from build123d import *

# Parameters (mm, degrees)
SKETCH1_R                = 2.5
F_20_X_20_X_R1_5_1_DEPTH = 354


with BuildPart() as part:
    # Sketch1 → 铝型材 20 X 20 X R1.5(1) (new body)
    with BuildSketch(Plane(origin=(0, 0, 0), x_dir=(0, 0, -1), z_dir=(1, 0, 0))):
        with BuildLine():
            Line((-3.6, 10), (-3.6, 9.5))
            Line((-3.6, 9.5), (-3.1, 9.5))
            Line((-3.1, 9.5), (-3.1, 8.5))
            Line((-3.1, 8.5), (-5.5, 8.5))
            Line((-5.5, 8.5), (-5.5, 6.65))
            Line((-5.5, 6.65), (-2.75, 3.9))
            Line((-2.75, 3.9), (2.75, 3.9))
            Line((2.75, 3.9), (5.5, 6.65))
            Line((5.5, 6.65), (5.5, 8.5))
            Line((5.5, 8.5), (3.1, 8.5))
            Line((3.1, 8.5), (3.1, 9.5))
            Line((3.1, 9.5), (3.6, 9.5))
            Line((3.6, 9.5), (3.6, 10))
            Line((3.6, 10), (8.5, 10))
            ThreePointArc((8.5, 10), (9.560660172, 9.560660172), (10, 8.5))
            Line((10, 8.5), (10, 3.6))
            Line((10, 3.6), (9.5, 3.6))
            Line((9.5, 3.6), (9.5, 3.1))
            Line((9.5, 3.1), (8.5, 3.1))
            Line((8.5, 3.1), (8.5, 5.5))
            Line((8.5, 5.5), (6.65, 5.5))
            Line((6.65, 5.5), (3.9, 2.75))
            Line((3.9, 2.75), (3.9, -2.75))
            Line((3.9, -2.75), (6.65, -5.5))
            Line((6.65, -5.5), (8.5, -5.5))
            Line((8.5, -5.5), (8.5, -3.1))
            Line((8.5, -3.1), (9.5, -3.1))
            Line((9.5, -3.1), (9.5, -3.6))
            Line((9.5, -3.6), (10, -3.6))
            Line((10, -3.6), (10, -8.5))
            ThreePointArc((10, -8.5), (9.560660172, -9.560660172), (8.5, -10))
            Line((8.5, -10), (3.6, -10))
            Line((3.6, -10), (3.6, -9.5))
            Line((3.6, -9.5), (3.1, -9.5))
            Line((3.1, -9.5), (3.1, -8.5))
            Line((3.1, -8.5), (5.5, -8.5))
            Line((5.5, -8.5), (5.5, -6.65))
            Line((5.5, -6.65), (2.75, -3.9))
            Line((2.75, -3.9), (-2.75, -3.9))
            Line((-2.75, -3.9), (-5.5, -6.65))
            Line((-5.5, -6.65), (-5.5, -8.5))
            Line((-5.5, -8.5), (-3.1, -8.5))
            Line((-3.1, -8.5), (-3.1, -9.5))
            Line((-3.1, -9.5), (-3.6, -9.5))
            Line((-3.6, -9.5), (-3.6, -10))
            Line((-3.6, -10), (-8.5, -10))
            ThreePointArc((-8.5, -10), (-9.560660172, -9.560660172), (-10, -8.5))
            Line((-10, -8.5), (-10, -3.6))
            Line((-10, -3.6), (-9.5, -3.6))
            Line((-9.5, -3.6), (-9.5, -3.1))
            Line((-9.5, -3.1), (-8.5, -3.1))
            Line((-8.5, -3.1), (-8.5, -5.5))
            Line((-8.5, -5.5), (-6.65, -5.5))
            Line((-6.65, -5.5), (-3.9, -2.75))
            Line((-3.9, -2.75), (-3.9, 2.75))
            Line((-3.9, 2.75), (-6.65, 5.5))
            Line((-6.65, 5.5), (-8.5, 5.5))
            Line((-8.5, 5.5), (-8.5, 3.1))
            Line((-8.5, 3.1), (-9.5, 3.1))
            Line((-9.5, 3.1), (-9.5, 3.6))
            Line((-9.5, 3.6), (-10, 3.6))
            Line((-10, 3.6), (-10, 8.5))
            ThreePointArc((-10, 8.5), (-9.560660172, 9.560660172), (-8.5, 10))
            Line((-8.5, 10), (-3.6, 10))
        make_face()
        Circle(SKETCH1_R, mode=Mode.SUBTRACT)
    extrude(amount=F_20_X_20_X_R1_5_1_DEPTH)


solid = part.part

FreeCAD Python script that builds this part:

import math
import FreeCAD as App
import Part
import Sketcher
Q = App.Units.Quantity

doc = App.newDocument("Part")
params = doc.addObject("Spreadsheet::Sheet", "Params")
for row, (alias, value) in enumerate([
    ("sketch1_diameter", "5 mm"),
    ("sketch1_radius", "1.5 mm"),
    ("sketch1_width", "1 mm"),
    ("sketch1_width2", "4.9 mm"),
    ("sketch1_width3", "2.4 mm"),
    ("pad1_length", "354 mm"),
], start=1):
    params.set(f"A{row}", alias)
    params.set(f"B{row}", "=" + value)
    params.setAlias(f"B{row}", alias)

body = doc.addObject("PartDesign::Body", "Body")

# Sketch on YZ plane
sketch1 = body.newObject("Sketcher::SketchObject", "Sketch")
sketch1.AttachmentSupport = (doc.getObject("YZ_Plane"), [""])
sketch1.MapMode = "FlatFace"
sketch1.addGeometry(Part.LineSegment(App.Vector(9.5, 3.6, 0), App.Vector(10, 3.6, 0)), False)
sketch1.addGeometry(Part.LineSegment(App.Vector(10, 3.6, 0), App.Vector(10, 8.5, 0)), False)
sketch1.addGeometry(Part.ArcOfCircle(Part.Circle(App.Vector(8.5, 8.5, 0), App.Vector(0, 0, 1), 1.5), math.radians(0), math.radians(90)), False)
sketch1.addGeometry(Part.LineSegment(App.Vector(8.5, 10, 0), App.Vector(3.6, 10, 0)), False)
sketch1.addGeometry(Part.LineSegment(App.Vector(3.6, 10, 0), App.Vector(3.6, 9.5, 0)), False)
sketch1.addGeometry(Part.LineSegment(App.Vector(3.6, 9.5, 0), App.Vector(3.1, 9.5, 0)), False)
sketch1.addGeometry(Part.LineSegment(App.Vector(3.1, 9.5, 0), App.Vector(3.1, 8.5, 0)), False)
sketch1.addGeometry(Part.LineSegment(App.Vector(3.1, 8.5, 0), App.Vector(5.5, 8.5, 0)), False)
sketch1.addGeometry(Part.LineSegment(App.Vector(5.5, 8.5, 0), App.Vector(5.5, 6.7, 0)), False)
sketch1.addGeometry(Part.LineSegment(App.Vector(5.5, 6.7, 0), App.Vector(2.8, 3.9, 0)), False)
sketch1.addGeometry(Part.LineSegment(App.Vector(2.8, 3.9, 0), App.Vector(-2.8, 3.9, 0)), False)
sketch1.addGeometry(Part.LineSegment(App.Vector(-2.8, 3.9, 0), App.Vector(-5.5, 6.7, 0)), False)
sketch1.addGeometry(Part.LineSegment(App.Vector(-5.5, 6.7, 0), App.Vector(-5.5, 8.5, 0)), False)
sketch1.addGeometry(Part.LineSegment(App.Vector(-5.5, 8.5, 0), App.Vector(-3.1, 8.5, 0)), False)
sketch1.addGeometry(Part.LineSegment(App.Vector(-3.1, 8.5, 0), App.Vector(-3.1, 9.5, 0)), False)
sketch1.addGeometry(Part.LineSegment(App.Vector(-3.1, 9.5, 0), App.Vector(-3.6, 9.5, 0)), False)
sketch1.addGeometry(Part.LineSegment(App.Vector(-3.6, 9.5, 0), App.Vector(-3.6, 10, 0)), False)
sketch1.addGeometry(Part.LineSegment(App.Vector(-3.6, 10, 0), App.Vector(-8.5, 10, 0)), False)
sketch1.addGeometry(Part.ArcOfCircle(Part.Circle(App.Vector(-8.5, 8.5, 0), App.Vector(0, 0, 1), 1.5), math.radians(90), math.radians(180)), False)
sketch1.addGeometry(Part.LineSegment(App.Vector(-10, 8.5, 0), App.Vector(-10, 3.6, 0)), False)
sketch1.addGeometry(Part.LineSegment(App.Vector(-10, 3.6, 0), App.Vector(-9.5, 3.6, 0)), False)
sketch1.addGeometry(Part.LineSegment(App.Vector(-9.5, 3.6, 0), App.Vector(-9.5, 3.1, 0)), False)
sketch1.addGeometry(Part.LineSegment(App.Vector(-9.5, 3.1, 0), App.Vector(-8.5, 3.1, 0)), False)
sketch1.addGeometry(Part.LineSegment(App.Vector(-8.5, 3.1, 0), App.Vector(-8.5, 5.5, 0)), False)
sketch1.addGeometry(Part.LineSegment(App.Vector(-8.5, 5.5, 0), App.Vector(-6.7, 5.5, 0)), False)
sketch1.addGeometry(Part.LineSegment(App.Vector(-6.7, 5.5, 0), App.Vector(-3.9, 2.8, 0)), False)
sketch1.addGeometry(Part.LineSegment(App.Vector(-3.9, 2.8, 0), App.Vector(-3.9, -2.8, 0)), False)
sketch1.addGeometry(Part.LineSegment(App.Vector(-3.9, -2.8, 0), App.Vector(-6.7, -5.5, 0)), False)
sketch1.addGeometry(Part.LineSegment(App.Vector(-6.7, -5.5, 0), App.Vector(-8.5, -5.5, 0)), False)
sketch1.addGeometry(Part.LineSegment(App.Vector(-8.5, -5.5, 0), App.Vector(-8.5, -3.1, 0)), False)
sketch1.addGeometry(Part.LineSegment(App.Vector(-8.5, -3.1, 0), App.Vector(-9.5, -3.1, 0)), False)
sketch1.addGeometry(Part.LineSegment(App.Vector(-9.5, -3.1, 0), App.Vector(-9.5, -3.6, 0)), False)
sketch1.addGeometry(Part.LineSegment(App.Vector(-9.5, -3.6, 0), App.Vector(-10, -3.6, 0)), False)
sketch1.addGeometry(Part.LineSegment(App.Vector(-10, -3.6, 0), App.Vector(-10, -8.5, 0)), False)
sketch1.addGeometry(Part.ArcOfCircle(Part.Circle(App.Vector(-8.5, -8.5, 0), App.Vector(0, 0, 1), 1.5), math.radians(180), math.radians(270)), False)
sketch1.addGeometry(Part.LineSegment(App.Vector(-8.5, -10, 0), App.Vector(-3.6, -10, 0)), False)
sketch1.addGeometry(Part.LineSegment(App.Vector(-3.6, -10, 0), App.Vector(-3.6, -9.5, 0)), False)
sketch1.addGeometry(Part.LineSegment(App.Vector(-3.6, -9.5, 0), App.Vector(-3.1, -9.5, 0)), False)
sketch1.addGeometry(Part.LineSegment(App.Vector(-3.1, -9.5, 0), App.Vector(-3.1, -8.5, 0)), False)
sketch1.addGeometry(Part.LineSegment(App.Vector(-3.1, -8.5, 0), App.Vector(-5.5, -8.5, 0)), False)
sketch1.addGeometry(Part.LineSegment(App.Vector(-5.5, -8.5, 0), App.Vector(-5.5, -6.7, 0)), False)
sketch1.addGeometry(Part.LineSegment(App.Vector(-5.5, -6.7, 0), App.Vector(-2.8, -3.9, 0)), False)
sketch1.addGeometry(Part.LineSegment(App.Vector(-2.8, -3.9, 0), App.Vector(2.8, -3.9, 0)), False)
sketch1.addGeometry(Part.LineSegment(App.Vector(2.8, -3.9, 0), App.Vector(5.5, -6.7, 0)), False)
sketch1.addGeometry(Part.LineSegment(App.Vector(5.5, -6.7, 0), App.Vector(5.5, -8.5, 0)), False)
sketch1.addGeometry(Part.LineSegment(App.Vector(5.5, -8.5, 0), App.Vector(3.1, -8.5, 0)), False)
sketch1.addGeometry(Part.LineSegment(App.Vector(3.1, -8.5, 0), App.Vector(3.1, -9.5, 0)), False)
sketch1.addGeometry(Part.LineSegment(App.Vector(3.1, -9.5, 0), App.Vector(3.6, -9.5, 0)), False)
sketch1.addGeometry(Part.LineSegment(App.Vector(3.6, -9.5, 0), App.Vector(3.6, -10, 0)), False)
sketch1.addGeometry(Part.LineSegment(App.Vector(3.6, -10, 0), App.Vector(8.5, -10, 0)), False)
sketch1.addGeometry(Part.ArcOfCircle(Part.Circle(App.Vector(8.5, -8.5, 0), App.Vector(0, 0, 1), 1.5), math.radians(-90), math.radians(0)), False)
sketch1.addGeometry(Part.LineSegment(App.Vector(10, -8.5, 0), App.Vector(10, -3.6, 0)), False)
sketch1.addGeometry(Part.LineSegment(App.Vector(10, -3.6, 0), App.Vector(9.5, -3.6, 0)), False)
sketch1.addGeometry(Part.LineSegment(App.Vector(9.5, -3.6, 0), App.Vector(9.5, -3.1, 0)), False)
sketch1.addGeometry(Part.LineSegment(App.Vector(9.5, -3.1, 0), App.Vector(8.5, -3.1, 0)), False)
sketch1.addGeometry(Part.LineSegment(App.Vector(8.5, -3.1, 0), App.Vector(8.5, -5.5, 0)), False)
sketch1.addGeometry(Part.LineSegment(App.Vector(8.5, -5.5, 0), App.Vector(6.7, -5.5, 0)), False)
sketch1.addGeometry(Part.LineSegment(App.Vector(6.7, -5.5, 0), App.Vector(3.9, -2.8, 0)), False)
sketch1.addGeometry(Part.LineSegment(App.Vector(3.9, -2.8, 0), App.Vector(3.9, 2.8, 0)), False)
sketch1.addGeometry(Part.LineSegment(App.Vector(3.9, 2.8, 0), App.Vector(6.7, 5.5, 0)), False)
sketch1.addGeometry(Part.LineSegment(App.Vector(6.7, 5.5, 0), App.Vector(8.5, 5.5, 0)), False)
sketch1.addGeometry(Part.LineSegment(App.Vector(8.5, 5.5, 0), App.Vector(8.5, 3.1, 0)), False)
sketch1.addGeometry(Part.LineSegment(App.Vector(8.5, 3.1, 0), App.Vector(9.5, 3.1, 0)), False)
sketch1.addGeometry(Part.LineSegment(App.Vector(9.5, 3.1, 0), App.Vector(9.5, 3.6, 0)), False)
sketch1.addGeometry(Part.Circle(App.Vector(0, 0, 0), App.Vector(0, 0, 1), 2.5), False)
sketch1.addConstraint(Sketcher.Constraint("Coincident", 0, 2, 1, 1))
sketch1.addConstraint(Sketcher.Constraint("Tangent", 1, 2, 2, 1))
sketch1.addConstraint(Sketcher.Constraint("Tangent", 2, 2, 3, 1))
sketch1.addConstraint(Sketcher.Constraint("Coincident", 3, 2, 4, 1))
sketch1.addConstraint(Sketcher.Constraint("Coincident", 4, 2, 5, 1))
sketch1.addConstraint(Sketcher.Constraint("Coincident", 5, 2, 6, 1))
sketch1.addConstraint(Sketcher.Constraint("Coincident", 6, 2, 7, 1))
sketch1.addConstraint(Sketcher.Constraint("Coincident", 7, 2, 8, 1))
sketch1.addConstraint(Sketcher.Constraint("Coincident", 8, 2, 9, 1))
sketch1.addConstraint(Sketcher.Constraint("Coincident", 9, 2, 10, 1))
sketch1.addConstraint(Sketcher.Constraint("Coincident", 10, 2, 11, 1))
sketch1.addConstraint(Sketcher.Constraint("Coincident", 11, 2, 12, 1))
sketch1.addConstraint(Sketcher.Constraint("Coincident", 12, 2, 13, 1))
sketch1.addConstraint(Sketcher.Constraint("Coincident", 13, 2, 14, 1))
sketch1.addConstraint(Sketcher.Constraint("Coincident", 14, 2, 15, 1))
sketch1.addConstraint(Sketcher.Constraint("Coincident", 15, 2, 16, 1))
sketch1.addConstraint(Sketcher.Constraint("Coincident", 16, 2, 17, 1))
sketch1.addConstraint(Sketcher.Constraint("Tangent", 17, 2, 18, 1))
sketch1.addConstraint(Sketcher.Constraint("Tangent", 18, 2, 19, 1))
sketch1.addConstraint(Sketcher.Constraint("Coincident", 19, 2, 20, 1))
sketch1.addConstraint(Sketcher.Constraint("Coincident", 20, 2, 21, 1))
sketch1.addConstraint(Sketcher.Constraint("Coincident", 21, 2, 22, 1))
sketch1.addConstraint(Sketcher.Constraint("Coincident", 22, 2, 23, 1))
sketch1.addConstraint(Sketcher.Constraint("Coincident", 23, 2, 24, 1))
sketch1.addConstraint(Sketcher.Constraint("Coincident", 24, 2, 25, 1))
sketch1.addConstraint(Sketcher.Constraint("Coincident", 25, 2, 26, 1))
sketch1.addConstraint(Sketcher.Constraint("Coincident", 26, 2, 27, 1))
sketch1.addConstraint(Sketcher.Constraint("Coincident", 27, 2, 28, 1))
sketch1.addConstraint(Sketcher.Constraint("Coincident", 28, 2, 29, 1))
sketch1.addConstraint(Sketcher.Constraint("Coincident", 29, 2, 30, 1))
sketch1.addConstraint(Sketcher.Constraint("Coincident", 30, 2, 31, 1))
sketch1.addConstraint(Sketcher.Constraint("Coincident", 31, 2, 32, 1))
sketch1.addConstraint(Sketcher.Constraint("Coincident", 32, 2, 33, 1))
sketch1.addConstraint(Sketcher.Constraint("Tangent", 33, 2, 34, 1))
sketch1.addConstraint(Sketcher.Constraint("Tangent", 34, 2, 35, 1))
sketch1.addConstraint(Sketcher.Constraint("Coincident", 35, 2, 36, 1))
sketch1.addConstraint(Sketcher.Constraint("Coincident", 36, 2, 37, 1))
sketch1.addConstraint(Sketcher.Constraint("Coincident", 37, 2, 38, 1))
sketch1.addConstraint(Sketcher.Constraint("Coincident", 38, 2, 39, 1))
sketch1.addConstraint(Sketcher.Constraint("Coincident", 39, 2, 40, 1))
sketch1.addConstraint(Sketcher.Constraint("Coincident", 40, 2, 41, 1))
sketch1.addConstraint(Sketcher.Constraint("Coincident", 41, 2, 42, 1))
sketch1.addConstraint(Sketcher.Constraint("Coincident", 42, 2, 43, 1))
sketch1.addConstraint(Sketcher.Constraint("Coincident", 43, 2, 44, 1))
sketch1.addConstraint(Sketcher.Constraint("Coincident", 44, 2, 45, 1))
sketch1.addConstraint(Sketcher.Constraint("Coincident", 45, 2, 46, 1))
sketch1.addConstraint(Sketcher.Constraint("Coincident", 46, 2, 47, 1))
sketch1.addConstraint(Sketcher.Constraint("Coincident", 47, 2, 48, 1))
sketch1.addConstraint(Sketcher.Constraint("Coincident", 48, 2, 49, 1))
sketch1.addConstraint(Sketcher.Constraint("Tangent", 49, 2, 50, 1))
sketch1.addConstraint(Sketcher.Constraint("Tangent", 50, 2, 51, 1))
sketch1.addConstraint(Sketcher.Constraint("Coincident", 51, 2, 52, 1))
sketch1.addConstraint(Sketcher.Constraint("Coincident", 52, 2, 53, 1))
sketch1.addConstraint(Sketcher.Constraint("Coincident", 53, 2, 54, 1))
sketch1.addConstraint(Sketcher.Constraint("Coincident", 54, 2, 55, 1))
sketch1.addConstraint(Sketcher.Constraint("Coincident", 55, 2, 56, 1))
sketch1.addConstraint(Sketcher.Constraint("Coincident", 56, 2, 57, 1))
sketch1.addConstraint(Sketcher.Constraint("Coincident", 57, 2, 58, 1))
sketch1.addConstraint(Sketcher.Constraint("Coincident", 58, 2, 59, 1))
sketch1.addConstraint(Sketcher.Constraint("Coincident", 59, 2, 60, 1))
sketch1.addConstraint(Sketcher.Constraint("Coincident", 60, 2, 61, 1))
sketch1.addConstraint(Sketcher.Constraint("Coincident", 61, 2, 62, 1))
sketch1.addConstraint(Sketcher.Constraint("Coincident", 62, 2, 63, 1))
sketch1.addConstraint(Sketcher.Constraint("Coincident", 63, 2, 0, 1))
sketch1.addConstraint(Sketcher.Constraint("Horizontal", 0))
sketch1.addConstraint(Sketcher.Constraint("Vertical", 1))
sketch1.addConstraint(Sketcher.Constraint("Horizontal", 3))
sketch1.addConstraint(Sketcher.Constraint("Vertical", 4))
sketch1.addConstraint(Sketcher.Constraint("Horizontal", 5))
sketch1.addConstraint(Sketcher.Constraint("Vertical", 6))
sketch1.addConstraint(Sketcher.Constraint("Horizontal", 7))
sketch1.addConstraint(Sketcher.Constraint("Vertical", 8))
sketch1.addConstraint(Sketcher.Constraint("Horizontal", 10))
sketch1.addConstraint(Sketcher.Constraint("Vertical", 12))
sketch1.addConstraint(Sketcher.Constraint("Horizontal", 13))
sketch1.addConstraint(Sketcher.Constraint("Vertical", 14))
sketch1.addConstraint(Sketcher.Constraint("Horizontal", 15))
sketch1.addConstraint(Sketcher.Constraint("Vertical", 16))
sketch1.addConstraint(Sketcher.Constraint("Horizontal", 17))
sketch1.addConstraint(Sketcher.Constraint("Vertical", 19))
sketch1.addConstraint(Sketcher.Constraint("Horizontal", 20))
sketch1.addConstraint(Sketcher.Constraint("Vertical", 21))
sketch1.addConstraint(Sketcher.Constraint("Horizontal", 22))
sketch1.addConstraint(Sketcher.Constraint("Vertical", 23))
sketch1.addConstraint(Sketcher.Constraint("Horizontal", 24))
sketch1.addConstraint(Sketcher.Constraint("Vertical", 26))
sketch1.addConstraint(Sketcher.Constraint("Horizontal", 28))
sketch1.addConstraint(Sketcher.Constraint("Vertical", 29))
sketch1.addConstraint(Sketcher.Constraint("Horizontal", 30))
sketch1.addConstraint(Sketcher.Constraint("Vertical", 31))
sketch1.addConstraint(Sketcher.Constraint("Horizontal", 32))
sketch1.addConstraint(Sketcher.Constraint("Vertical", 33))
sketch1.addConstraint(Sketcher.Constraint("Horizontal", 35))
sketch1.addConstraint(Sketcher.Constraint("Vertical", 36))
sketch1.addConstraint(Sketcher.Constraint("Horizontal", 37))
sketch1.addConstraint(Sketcher.Constraint("Vertical", 38))
sketch1.addConstraint(Sketcher.Constraint("Horizontal", 39))
sketch1.addConstraint(Sketcher.Constraint("Vertical", 40))
sketch1.addConstraint(Sketcher.Constraint("Horizontal", 42))
sketch1.addConstraint(Sketcher.Constraint("Vertical", 44))
sketch1.addConstraint(Sketcher.Constraint("Horizontal", 45))
sketch1.addConstraint(Sketcher.Constraint("Vertical", 46))
sketch1.addConstraint(Sketcher.Constraint("Horizontal", 47))
sketch1.addConstraint(Sketcher.Constraint("Vertical", 48))
sketch1.addConstraint(Sketcher.Constraint("Horizontal", 49))
sketch1.addConstraint(Sketcher.Constraint("Vertical", 51))
sketch1.addConstraint(Sketcher.Constraint("Horizontal", 52))
sketch1.addConstraint(Sketcher.Constraint("Vertical", 53))
sketch1.addConstraint(Sketcher.Constraint("Horizontal", 54))
sketch1.addConstraint(Sketcher.Constraint("Vertical", 55))
sketch1.addConstraint(Sketcher.Constraint("Horizontal", 56))
sketch1.addConstraint(Sketcher.Constraint("Vertical", 58))
sketch1.addConstraint(Sketcher.Constraint("Horizontal", 60))
sketch1.addConstraint(Sketcher.Constraint("Vertical", 61))
sketch1.addConstraint(Sketcher.Constraint("Horizontal", 62))
sketch1.addConstraint(Sketcher.Constraint("Vertical", 63))
sketch1.addConstraint(Sketcher.Constraint("Coincident", 64, 3, -1, 1))
sketch1.addConstraint(Sketcher.Constraint("Equal", 2, 18))
sketch1.addConstraint(Sketcher.Constraint("Equal", 18, 34))
sketch1.addConstraint(Sketcher.Constraint("Equal", 34, 50))
sketch1.addConstraint(Sketcher.Constraint("Symmetric", 2, 3, 34, 3, -1, 1))
sketch1.addConstraint(Sketcher.Constraint("Symmetric", 18, 3, 50, 3, -1, 1))
sketch1.addConstraint(Sketcher.Constraint("Symmetric", 4, 2, 36, 2, -1, 1))
sketch1.addConstraint(Sketcher.Constraint("Symmetric", 6, 2, 38, 2, -1, 1))
sketch1.addConstraint(Sketcher.Constraint("Symmetric", 8, 2, 40, 2, -1, 1))
sketch1.addConstraint(Sketcher.Constraint("Symmetric", 9, 2, 41, 2, -1, 1))
sketch1.addConstraint(Sketcher.Constraint("Symmetric", 11, 2, 43, 2, -1, 1))
sketch1.addConstraint(Sketcher.Constraint("Symmetric", 13, 2, 45, 2, -1, 1))
sketch1.addConstraint(Sketcher.Constraint("Symmetric", 15, 2, 47, 2, -1, 1))
sketch1.addConstraint(Sketcher.Constraint("Symmetric", 20, 2, 52, 2, -1, 1))
sketch1.addConstraint(Sketcher.Constraint("Symmetric", 22, 2, 54, 2, -1, 1))
sketch1.addConstraint(Sketcher.Constraint("Symmetric", 24, 2, 56, 2, -1, 1))
sketch1.addConstraint(Sketcher.Constraint("Symmetric", 25, 2, 57, 2, -1, 1))
sketch1.addConstraint(Sketcher.Constraint("Symmetric", 27, 2, 59, 2, -1, 1))
sketch1.addConstraint(Sketcher.Constraint("Symmetric", 29, 2, 61, 2, -1, 1))
sketch1.addConstraint(Sketcher.Constraint("Symmetric", 31, 2, 63, 2, -1, 1))
sketch1.addConstraint(Sketcher.Constraint("Symmetric", 2, 3, 18, 3, -2))
sketch1.addConstraint(Sketcher.Constraint("Symmetric", 8, 2, 11, 2, -2))
sketch1.addConstraint(Sketcher.Constraint("Symmetric", 6, 2, 13, 2, -2))
sketch1.addConstraint(Sketcher.Constraint("Symmetric", 4, 2, 15, 2, -2))
sketch1.addConstraint(Sketcher.Constraint("Symmetric", 31, 2, 52, 2, -2))
sketch1.addConstraint(Sketcher.Constraint("Symmetric", 29, 2, 54, 2, -2))
sketch1.addConstraint(Sketcher.Constraint("Symmetric", 27, 2, 56, 2, -2))
sketch1.addConstraint(Sketcher.Constraint("Perpendicular", 9, 11))
sketch1.addConstraint(Sketcher.Constraint("Parallel", 11, 25))
sketch1.addConstraint(Sketcher.Constraint("Perpendicular", 25, 27))
sketch1.addConstraint(Sketcher.Constraint("Perpendicular", 41, 43))
sketch1.addConstraint(Sketcher.Constraint("Perpendicular", 57, 59))
sketch1.addConstraint(Sketcher.Constraint("Horizontal", 1, 2, 6, 2))
sketch1.addConstraint(Sketcher.Constraint("Horizontal", 26, 2, 57, 2))
sketch1.addConstraint(Sketcher.Constraint("Vertical", 17, 2, 22, 2))
sketch1.addConstraint(Sketcher.Constraint("Equal", 0, 5))
sketch1.addConstraint(Sketcher.Constraint("Equal", 49, 1))
sketch1.addConstraint(Sketcher.Constraint("Equal", 52, 4))
sketch1.addConstraint(Sketcher.Constraint("Equal", 60, 8))
sketch1.addConstraint(Sketcher.Constraint("Equal", 16, 21))
sketch1.addConstraint(Sketcher.Constraint("Equal", 45, 23))
sketch1.addConstraint(Sketcher.Constraint("Equal", 42, 26))
sketch1.addConstraint(Sketcher.Constraint("Equal", 11, 25))
sketch1.addConstraint(Sketcher.Constraint("Diameter", 64, Q("5 mm")))
sketch1.addConstraint(Sketcher.Constraint("Radius", 2, Q("1.5 mm")))
sketch1.addConstraint(Sketcher.Constraint("DistanceX", 22, 1, 22, 2, Q("1 mm")))
sketch1.addConstraint(Sketcher.Constraint("DistanceX", 3, 2, 3, 1, Q("4.9 mm")))
sketch1.addConstraint(Sketcher.Constraint("DistanceX", 7, 1, 7, 2, Q("2.4 mm")))
sketch1.addConstraint(Sketcher.Constraint("DistanceX", 10, 2, 10, 1, Q("5.5 mm")))
sketch1.addConstraint(Sketcher.Constraint("DistanceX", -1, 1, 0, 2, Q("10 mm")))
sketch1.addConstraint(Sketcher.Constraint("DistanceX", 24, 1, 24, 2, Q("1.85 mm")))
sketch1.setExpression("Constraints[159]", "Params.sketch1_diameter")
sketch1.setExpression("Constraints[160]", "Params.sketch1_radius")
sketch1.setExpression("Constraints[161]", "Params.sketch1_width")
sketch1.setExpression("Constraints[162]", "Params.sketch1_width2")
sketch1.setExpression("Constraints[163]", "Params.sketch1_width3")
pad1 = body.newObject("PartDesign::Pad", "Pad")
pad1.Profile = sketch1
pad1.setExpression("Length", "Params.pad1_length")

doc.recompute()
